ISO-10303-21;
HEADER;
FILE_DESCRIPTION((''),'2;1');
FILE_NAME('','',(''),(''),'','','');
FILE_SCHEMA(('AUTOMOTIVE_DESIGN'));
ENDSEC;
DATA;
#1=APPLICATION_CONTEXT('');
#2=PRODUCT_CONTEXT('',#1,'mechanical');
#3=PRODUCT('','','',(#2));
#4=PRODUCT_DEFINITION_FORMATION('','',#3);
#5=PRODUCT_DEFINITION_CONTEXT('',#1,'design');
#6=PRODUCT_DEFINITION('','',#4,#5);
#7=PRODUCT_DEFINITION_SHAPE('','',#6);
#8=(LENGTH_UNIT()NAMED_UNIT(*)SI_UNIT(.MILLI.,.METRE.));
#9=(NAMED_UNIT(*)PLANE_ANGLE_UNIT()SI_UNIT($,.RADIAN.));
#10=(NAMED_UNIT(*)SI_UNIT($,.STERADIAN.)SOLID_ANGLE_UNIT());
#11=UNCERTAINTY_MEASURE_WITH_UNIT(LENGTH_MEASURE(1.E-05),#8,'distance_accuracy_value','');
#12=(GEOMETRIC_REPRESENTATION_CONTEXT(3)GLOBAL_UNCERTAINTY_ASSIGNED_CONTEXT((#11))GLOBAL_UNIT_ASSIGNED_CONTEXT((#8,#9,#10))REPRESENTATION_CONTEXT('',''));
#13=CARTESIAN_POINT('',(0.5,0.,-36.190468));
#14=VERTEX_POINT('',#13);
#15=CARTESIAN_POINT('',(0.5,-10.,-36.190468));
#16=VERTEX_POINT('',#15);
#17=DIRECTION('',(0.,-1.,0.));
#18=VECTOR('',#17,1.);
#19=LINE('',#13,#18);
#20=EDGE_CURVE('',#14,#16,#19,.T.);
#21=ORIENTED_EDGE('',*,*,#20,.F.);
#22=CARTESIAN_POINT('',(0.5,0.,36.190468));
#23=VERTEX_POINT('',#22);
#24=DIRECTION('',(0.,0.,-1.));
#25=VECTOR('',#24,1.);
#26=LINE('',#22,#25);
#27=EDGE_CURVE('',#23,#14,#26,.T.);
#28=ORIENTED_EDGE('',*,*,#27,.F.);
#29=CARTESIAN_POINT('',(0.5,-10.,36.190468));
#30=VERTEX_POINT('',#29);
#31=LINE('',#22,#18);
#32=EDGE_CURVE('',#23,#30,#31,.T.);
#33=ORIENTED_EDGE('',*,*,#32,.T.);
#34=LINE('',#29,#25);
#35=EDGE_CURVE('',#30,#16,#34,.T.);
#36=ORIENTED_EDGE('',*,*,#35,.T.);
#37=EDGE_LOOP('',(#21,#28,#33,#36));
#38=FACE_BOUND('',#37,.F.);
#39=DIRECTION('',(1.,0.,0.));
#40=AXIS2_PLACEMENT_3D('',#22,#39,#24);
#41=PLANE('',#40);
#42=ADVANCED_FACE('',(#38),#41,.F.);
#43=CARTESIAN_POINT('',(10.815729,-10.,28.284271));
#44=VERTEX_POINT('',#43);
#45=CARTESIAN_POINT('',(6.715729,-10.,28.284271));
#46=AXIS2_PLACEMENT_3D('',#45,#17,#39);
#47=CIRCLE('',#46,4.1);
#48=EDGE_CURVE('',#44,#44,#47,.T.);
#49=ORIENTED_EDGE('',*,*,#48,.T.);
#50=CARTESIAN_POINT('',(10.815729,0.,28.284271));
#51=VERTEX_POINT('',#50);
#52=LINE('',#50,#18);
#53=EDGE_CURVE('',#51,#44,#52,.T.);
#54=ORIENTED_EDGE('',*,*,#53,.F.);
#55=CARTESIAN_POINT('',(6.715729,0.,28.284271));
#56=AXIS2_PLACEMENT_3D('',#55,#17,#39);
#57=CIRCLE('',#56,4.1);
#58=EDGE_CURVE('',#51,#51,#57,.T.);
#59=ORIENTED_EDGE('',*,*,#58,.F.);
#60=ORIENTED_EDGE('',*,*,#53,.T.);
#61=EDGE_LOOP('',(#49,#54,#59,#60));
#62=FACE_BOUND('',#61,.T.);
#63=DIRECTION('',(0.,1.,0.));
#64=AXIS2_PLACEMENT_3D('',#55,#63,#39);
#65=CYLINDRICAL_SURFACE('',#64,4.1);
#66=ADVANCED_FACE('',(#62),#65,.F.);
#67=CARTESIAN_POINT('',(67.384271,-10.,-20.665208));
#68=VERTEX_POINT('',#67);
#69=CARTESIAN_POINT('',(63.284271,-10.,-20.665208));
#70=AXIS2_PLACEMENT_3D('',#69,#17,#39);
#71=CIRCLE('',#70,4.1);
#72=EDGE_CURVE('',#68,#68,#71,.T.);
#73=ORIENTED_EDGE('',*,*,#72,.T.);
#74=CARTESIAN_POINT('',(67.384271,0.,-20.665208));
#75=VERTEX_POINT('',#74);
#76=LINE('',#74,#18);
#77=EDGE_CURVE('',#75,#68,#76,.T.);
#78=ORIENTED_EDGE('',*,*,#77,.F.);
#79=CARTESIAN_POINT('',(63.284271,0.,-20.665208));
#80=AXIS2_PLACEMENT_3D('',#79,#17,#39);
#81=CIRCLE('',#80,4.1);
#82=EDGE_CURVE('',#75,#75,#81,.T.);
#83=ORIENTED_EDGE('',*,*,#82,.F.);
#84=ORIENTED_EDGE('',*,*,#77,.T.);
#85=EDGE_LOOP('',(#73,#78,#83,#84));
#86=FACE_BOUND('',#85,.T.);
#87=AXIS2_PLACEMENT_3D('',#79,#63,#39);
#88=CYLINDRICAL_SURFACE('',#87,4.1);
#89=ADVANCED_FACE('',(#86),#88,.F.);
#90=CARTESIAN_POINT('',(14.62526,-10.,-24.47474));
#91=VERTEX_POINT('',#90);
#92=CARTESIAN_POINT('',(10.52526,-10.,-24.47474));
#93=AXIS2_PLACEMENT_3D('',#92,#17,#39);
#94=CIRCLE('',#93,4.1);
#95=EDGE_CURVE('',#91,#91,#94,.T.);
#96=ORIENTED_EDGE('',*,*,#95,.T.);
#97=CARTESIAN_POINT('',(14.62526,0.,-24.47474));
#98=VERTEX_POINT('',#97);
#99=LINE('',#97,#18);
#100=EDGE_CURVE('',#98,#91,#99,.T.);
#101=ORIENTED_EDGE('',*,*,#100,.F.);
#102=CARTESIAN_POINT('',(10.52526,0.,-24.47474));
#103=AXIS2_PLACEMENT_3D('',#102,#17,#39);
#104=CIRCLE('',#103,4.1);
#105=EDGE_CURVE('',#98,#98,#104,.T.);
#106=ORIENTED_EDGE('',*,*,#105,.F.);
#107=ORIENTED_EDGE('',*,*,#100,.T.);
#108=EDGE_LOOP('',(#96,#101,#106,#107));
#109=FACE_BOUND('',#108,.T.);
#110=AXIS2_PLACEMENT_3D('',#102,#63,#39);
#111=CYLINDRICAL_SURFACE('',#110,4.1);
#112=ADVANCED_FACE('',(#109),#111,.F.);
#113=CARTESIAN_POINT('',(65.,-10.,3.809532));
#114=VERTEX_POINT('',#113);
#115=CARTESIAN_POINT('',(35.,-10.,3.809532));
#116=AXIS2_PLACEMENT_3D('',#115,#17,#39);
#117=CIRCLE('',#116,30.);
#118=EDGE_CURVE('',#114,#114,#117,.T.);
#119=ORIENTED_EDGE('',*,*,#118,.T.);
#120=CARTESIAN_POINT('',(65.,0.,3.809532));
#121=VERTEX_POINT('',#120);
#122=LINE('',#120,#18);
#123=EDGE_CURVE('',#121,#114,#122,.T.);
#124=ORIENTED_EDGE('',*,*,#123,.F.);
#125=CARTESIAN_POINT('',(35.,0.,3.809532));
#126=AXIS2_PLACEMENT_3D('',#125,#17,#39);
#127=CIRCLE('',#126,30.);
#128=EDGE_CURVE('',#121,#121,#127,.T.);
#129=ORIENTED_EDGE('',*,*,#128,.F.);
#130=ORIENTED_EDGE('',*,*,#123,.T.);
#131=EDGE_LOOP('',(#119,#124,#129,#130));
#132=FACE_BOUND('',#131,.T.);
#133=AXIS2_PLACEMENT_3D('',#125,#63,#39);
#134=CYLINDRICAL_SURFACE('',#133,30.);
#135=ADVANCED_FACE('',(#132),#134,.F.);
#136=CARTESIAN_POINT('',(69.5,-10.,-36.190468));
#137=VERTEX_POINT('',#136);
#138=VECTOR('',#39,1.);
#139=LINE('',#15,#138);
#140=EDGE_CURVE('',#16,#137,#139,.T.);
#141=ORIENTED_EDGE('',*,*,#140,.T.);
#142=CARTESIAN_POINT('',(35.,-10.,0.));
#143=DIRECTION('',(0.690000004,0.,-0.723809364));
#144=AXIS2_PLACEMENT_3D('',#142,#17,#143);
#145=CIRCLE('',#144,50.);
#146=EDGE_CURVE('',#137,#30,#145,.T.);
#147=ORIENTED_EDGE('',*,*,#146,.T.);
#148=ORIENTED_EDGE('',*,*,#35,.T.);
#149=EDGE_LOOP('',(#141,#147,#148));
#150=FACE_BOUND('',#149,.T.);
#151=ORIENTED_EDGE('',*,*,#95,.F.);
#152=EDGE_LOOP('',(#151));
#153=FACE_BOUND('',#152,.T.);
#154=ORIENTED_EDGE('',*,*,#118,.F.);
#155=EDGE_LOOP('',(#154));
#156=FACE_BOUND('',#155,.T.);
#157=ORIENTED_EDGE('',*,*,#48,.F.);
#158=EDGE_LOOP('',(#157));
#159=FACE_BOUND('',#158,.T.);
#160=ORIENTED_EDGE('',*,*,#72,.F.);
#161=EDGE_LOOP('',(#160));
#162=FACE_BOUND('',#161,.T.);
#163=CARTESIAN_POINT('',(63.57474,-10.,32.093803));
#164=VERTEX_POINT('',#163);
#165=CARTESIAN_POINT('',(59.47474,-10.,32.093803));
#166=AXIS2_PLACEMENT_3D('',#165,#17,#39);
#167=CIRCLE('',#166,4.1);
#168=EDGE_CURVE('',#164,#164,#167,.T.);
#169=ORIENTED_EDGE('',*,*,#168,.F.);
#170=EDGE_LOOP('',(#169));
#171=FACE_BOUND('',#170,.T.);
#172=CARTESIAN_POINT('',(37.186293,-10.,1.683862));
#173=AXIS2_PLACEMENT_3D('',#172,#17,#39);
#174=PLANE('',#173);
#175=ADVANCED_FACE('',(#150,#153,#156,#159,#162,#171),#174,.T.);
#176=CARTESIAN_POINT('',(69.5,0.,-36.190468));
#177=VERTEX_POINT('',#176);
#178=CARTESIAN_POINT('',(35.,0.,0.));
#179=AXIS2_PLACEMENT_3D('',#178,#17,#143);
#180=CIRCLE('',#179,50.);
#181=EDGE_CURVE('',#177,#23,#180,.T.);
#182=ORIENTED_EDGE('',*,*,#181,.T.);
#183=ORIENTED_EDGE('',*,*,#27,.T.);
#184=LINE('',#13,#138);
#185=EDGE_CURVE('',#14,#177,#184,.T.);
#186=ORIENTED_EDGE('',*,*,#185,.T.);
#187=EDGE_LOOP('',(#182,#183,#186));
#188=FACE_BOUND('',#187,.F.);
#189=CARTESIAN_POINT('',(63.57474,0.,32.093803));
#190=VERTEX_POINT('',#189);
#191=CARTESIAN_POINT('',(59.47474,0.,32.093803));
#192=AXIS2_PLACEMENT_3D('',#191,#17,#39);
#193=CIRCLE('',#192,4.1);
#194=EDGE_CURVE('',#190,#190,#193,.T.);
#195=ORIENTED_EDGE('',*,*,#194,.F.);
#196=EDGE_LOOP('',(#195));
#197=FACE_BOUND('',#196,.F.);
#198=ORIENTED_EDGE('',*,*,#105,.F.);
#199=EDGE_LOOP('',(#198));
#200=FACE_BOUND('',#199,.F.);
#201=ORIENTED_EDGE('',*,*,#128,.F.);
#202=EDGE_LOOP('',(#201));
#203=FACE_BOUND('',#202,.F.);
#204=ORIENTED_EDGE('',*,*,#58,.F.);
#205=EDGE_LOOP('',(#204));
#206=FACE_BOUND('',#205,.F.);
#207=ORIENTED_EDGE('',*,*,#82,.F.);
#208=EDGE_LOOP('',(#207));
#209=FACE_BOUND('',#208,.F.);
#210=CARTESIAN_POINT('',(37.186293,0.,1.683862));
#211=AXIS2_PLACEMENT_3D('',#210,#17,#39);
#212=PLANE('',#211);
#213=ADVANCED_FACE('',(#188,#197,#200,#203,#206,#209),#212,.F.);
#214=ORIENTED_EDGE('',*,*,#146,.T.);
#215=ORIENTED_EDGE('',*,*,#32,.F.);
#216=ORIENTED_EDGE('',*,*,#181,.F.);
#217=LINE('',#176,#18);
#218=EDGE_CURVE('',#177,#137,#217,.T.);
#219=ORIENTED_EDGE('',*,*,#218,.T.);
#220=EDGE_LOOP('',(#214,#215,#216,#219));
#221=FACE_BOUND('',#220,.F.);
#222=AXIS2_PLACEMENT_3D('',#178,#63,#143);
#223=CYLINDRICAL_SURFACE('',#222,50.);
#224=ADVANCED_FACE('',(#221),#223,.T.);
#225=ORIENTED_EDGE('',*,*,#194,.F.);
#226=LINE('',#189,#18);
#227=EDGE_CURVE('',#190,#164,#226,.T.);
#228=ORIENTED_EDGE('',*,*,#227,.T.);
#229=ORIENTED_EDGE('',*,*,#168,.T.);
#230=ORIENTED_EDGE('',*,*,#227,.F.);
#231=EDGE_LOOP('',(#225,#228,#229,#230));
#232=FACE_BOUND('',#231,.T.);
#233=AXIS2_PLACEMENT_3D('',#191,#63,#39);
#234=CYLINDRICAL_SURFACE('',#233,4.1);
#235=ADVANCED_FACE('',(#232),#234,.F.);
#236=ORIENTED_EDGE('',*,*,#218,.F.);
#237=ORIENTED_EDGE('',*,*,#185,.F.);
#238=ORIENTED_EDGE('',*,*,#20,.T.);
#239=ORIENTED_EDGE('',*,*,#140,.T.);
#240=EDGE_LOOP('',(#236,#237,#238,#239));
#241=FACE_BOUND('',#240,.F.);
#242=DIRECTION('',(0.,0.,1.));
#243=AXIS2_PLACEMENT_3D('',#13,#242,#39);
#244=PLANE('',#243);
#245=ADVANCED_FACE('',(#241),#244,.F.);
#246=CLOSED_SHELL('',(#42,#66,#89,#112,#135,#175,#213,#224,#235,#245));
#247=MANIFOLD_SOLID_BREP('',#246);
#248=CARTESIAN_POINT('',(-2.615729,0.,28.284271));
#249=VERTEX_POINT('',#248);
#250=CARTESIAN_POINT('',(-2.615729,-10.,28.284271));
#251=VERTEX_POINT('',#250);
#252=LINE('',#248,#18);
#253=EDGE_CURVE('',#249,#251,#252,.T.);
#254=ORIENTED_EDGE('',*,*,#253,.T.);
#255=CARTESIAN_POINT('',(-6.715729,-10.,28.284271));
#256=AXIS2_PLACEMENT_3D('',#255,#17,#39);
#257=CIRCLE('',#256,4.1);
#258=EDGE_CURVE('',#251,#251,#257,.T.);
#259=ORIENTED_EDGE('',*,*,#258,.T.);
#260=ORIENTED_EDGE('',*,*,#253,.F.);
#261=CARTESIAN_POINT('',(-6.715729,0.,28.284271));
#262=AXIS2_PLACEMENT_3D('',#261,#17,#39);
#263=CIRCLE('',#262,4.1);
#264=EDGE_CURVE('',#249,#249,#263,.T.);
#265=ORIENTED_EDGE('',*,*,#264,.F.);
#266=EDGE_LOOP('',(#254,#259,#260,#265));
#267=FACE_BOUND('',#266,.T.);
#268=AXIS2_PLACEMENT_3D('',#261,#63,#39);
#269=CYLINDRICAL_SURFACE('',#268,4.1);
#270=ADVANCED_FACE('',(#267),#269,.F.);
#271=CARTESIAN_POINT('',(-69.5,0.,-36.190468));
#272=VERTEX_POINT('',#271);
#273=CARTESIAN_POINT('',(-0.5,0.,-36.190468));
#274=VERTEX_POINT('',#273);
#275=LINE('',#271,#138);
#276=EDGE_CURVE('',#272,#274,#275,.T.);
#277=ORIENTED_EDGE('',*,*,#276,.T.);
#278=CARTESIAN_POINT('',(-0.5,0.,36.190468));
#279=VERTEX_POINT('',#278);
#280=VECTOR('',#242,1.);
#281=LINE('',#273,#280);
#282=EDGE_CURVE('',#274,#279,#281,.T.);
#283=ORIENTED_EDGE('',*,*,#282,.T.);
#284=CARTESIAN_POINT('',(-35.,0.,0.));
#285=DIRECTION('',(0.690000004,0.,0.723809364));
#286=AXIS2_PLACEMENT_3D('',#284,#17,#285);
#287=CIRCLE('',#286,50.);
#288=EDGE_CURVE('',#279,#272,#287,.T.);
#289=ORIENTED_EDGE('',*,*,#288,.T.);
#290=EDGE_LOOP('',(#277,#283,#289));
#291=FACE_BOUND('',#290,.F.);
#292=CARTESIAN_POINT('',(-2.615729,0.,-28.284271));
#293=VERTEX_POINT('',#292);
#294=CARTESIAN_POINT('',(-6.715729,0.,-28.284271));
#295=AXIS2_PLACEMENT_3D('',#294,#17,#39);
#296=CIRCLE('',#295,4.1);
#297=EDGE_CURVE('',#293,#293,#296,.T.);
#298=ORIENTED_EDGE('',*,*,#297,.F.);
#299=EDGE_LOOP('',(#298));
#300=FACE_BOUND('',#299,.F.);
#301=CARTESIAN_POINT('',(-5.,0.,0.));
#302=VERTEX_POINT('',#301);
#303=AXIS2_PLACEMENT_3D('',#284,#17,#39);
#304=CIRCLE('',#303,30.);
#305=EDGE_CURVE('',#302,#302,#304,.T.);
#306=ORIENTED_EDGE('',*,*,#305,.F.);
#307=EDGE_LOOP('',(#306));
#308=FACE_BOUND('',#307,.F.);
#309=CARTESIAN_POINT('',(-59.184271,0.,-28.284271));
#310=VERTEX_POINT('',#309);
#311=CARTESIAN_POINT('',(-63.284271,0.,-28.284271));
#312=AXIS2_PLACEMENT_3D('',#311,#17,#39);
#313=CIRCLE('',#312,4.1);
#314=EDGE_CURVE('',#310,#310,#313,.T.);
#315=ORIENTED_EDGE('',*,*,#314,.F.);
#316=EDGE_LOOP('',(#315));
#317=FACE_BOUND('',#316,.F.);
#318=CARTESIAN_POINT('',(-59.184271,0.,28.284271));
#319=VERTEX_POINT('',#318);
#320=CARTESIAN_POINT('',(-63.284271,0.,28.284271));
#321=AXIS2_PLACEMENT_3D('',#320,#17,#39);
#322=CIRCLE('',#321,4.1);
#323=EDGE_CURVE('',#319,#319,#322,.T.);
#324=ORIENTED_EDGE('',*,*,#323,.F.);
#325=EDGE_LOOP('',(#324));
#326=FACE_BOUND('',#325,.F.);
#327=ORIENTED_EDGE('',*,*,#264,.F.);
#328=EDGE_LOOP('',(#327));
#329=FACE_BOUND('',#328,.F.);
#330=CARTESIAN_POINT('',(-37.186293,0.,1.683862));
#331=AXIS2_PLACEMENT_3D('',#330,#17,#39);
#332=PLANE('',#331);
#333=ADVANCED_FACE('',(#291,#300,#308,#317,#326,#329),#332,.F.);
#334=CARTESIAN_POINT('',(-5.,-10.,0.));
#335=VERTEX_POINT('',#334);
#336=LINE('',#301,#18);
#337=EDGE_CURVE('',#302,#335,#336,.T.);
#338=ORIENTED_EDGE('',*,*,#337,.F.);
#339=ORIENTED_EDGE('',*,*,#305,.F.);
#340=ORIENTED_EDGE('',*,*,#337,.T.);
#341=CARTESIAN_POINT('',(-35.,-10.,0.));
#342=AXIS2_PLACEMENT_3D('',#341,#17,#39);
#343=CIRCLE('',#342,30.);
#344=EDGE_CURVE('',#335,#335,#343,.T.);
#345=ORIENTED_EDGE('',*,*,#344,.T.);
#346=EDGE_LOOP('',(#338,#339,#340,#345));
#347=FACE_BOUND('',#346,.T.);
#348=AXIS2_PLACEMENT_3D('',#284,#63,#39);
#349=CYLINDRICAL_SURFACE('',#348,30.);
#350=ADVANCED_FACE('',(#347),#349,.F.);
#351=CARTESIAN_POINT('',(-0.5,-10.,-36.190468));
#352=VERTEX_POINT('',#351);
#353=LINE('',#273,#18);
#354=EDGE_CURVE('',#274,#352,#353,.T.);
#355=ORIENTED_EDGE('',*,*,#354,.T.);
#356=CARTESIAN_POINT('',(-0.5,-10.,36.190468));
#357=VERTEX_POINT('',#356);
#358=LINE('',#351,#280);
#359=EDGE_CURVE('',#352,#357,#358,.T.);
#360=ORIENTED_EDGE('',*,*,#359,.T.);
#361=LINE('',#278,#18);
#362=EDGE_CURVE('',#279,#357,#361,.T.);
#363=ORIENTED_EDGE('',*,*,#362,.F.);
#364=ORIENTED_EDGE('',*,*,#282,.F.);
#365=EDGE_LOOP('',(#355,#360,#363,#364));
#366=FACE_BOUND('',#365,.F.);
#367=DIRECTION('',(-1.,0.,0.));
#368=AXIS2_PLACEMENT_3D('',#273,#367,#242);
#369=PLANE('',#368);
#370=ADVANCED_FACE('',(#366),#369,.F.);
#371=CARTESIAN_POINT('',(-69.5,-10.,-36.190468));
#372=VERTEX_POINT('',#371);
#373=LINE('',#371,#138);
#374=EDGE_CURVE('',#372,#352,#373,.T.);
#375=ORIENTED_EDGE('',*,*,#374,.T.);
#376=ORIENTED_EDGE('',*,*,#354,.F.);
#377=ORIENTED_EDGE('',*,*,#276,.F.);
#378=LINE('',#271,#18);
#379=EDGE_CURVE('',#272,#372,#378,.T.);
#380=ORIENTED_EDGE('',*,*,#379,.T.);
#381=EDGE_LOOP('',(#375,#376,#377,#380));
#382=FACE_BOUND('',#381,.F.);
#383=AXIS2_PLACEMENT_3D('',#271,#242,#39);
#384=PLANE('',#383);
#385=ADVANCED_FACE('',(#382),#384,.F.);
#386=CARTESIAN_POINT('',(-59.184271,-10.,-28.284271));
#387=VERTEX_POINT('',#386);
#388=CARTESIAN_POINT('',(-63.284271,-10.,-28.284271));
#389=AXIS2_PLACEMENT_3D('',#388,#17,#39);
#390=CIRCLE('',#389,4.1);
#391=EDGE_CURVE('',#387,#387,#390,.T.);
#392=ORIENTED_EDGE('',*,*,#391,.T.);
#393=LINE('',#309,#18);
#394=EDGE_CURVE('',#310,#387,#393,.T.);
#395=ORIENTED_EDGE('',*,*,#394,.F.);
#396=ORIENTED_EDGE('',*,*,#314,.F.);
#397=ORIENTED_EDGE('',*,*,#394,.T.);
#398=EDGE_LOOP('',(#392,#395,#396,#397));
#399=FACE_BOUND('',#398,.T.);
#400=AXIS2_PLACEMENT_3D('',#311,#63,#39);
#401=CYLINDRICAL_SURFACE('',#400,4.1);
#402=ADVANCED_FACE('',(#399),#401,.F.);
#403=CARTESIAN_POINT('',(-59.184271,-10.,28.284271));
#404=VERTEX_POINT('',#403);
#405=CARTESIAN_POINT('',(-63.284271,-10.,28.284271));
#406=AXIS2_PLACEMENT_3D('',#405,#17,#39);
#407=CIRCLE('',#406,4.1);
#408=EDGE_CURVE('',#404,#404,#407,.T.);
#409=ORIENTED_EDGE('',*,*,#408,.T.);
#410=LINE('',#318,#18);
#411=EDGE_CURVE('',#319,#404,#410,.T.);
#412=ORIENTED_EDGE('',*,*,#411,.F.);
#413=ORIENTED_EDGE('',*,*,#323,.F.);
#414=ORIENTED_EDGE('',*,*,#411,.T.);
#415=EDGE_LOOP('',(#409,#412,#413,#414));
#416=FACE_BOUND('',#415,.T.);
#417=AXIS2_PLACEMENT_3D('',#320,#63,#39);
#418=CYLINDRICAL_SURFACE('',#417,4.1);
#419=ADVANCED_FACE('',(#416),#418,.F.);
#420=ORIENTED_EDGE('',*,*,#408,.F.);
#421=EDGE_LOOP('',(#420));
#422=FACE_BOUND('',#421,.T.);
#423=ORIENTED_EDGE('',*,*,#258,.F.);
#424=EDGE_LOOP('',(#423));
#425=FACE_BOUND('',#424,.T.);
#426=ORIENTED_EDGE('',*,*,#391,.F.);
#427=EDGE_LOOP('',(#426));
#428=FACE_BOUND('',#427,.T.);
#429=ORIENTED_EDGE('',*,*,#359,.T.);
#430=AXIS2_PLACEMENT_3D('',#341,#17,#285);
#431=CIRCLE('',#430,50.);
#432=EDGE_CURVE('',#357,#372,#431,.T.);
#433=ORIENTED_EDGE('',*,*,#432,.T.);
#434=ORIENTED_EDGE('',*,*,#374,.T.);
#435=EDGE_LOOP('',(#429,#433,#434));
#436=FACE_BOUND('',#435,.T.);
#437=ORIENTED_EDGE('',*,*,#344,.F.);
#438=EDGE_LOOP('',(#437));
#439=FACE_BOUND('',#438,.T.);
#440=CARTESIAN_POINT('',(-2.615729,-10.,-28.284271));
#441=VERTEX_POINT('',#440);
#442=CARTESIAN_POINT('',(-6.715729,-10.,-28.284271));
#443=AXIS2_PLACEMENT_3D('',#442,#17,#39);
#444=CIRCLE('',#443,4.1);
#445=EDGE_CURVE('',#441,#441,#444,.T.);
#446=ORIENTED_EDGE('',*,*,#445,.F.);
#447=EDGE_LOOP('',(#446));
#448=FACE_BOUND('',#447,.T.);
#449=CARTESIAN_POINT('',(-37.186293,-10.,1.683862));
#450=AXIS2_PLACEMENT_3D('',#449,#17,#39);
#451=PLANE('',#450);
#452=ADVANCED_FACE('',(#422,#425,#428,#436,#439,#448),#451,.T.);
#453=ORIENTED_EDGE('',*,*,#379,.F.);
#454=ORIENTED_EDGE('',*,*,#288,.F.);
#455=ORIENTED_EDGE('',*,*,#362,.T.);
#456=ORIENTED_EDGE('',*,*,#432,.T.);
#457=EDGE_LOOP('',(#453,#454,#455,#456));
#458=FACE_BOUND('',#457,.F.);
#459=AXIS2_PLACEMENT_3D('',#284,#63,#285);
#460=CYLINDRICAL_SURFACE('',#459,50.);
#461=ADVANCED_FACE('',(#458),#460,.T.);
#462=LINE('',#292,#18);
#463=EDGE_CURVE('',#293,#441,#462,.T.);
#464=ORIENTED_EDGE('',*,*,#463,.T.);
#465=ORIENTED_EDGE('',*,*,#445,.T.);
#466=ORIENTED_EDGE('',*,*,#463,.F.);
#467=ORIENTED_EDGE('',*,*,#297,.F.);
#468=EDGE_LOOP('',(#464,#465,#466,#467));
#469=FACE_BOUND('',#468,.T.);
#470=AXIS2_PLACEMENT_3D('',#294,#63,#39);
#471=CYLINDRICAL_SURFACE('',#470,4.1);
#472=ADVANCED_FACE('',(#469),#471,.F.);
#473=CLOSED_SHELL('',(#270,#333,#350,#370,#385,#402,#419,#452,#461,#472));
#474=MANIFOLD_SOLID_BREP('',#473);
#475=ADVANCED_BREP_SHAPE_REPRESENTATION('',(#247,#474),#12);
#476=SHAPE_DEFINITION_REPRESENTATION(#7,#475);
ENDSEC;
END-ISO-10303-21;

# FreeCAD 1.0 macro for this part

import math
import FreeCAD as App
import Part
import Sketcher

V = App.Vector

doc = App.newDocument("Part")
body = doc.addObject("PartDesign::Body", "Body")
body.AllowCompound = True

sketch1 = body.newObject("Sketcher::SketchObject", "Sketch")
sketch1.AttachmentSupport = (doc.getObject("XZ_Plane"), [""])
sketch1.MapMode = "FlatFace"
sketch1.addGeometry([
    Part.LineSegment(V(-0.5, -36.190468, 0), V(-0.5, 36.190468, 0)),
    Part.ArcOfCircle(Part.Circle(V(-35, 0, 0), V(0, 0, 1), 50), math.radians(46.369891), math.radians(226.369891)),
    Part.LineSegment(V(-69.5, -36.190468, 0), V(-0.5, -36.190468, 0)),
    Part.Circle(V(-63.284271, -28.284271, 0), V(0, 0, 1), 4.1),
    Part.Circle(V(-6.715729, -28.284271, 0), V(0, 0, 1), 4.1),
    Part.Circle(V(-63.284271, 28.284271, 0), V(0, 0, 1), 4.1),
    Part.Circle(V(-35, 0, 0), V(0, 0, 1), 30),
    Part.Circle(V(-6.715729, 28.284271, 0), V(0, 0, 1), 4.1),
    Part.LineSegment(V(0.5, -36.190468, 0), V(69.5, -36.190468, 0)),
    Part.ArcOfCircle(Part.Circle(V(35, 0, 0), V(0, 0, 1), 50), math.radians(-46.369891), math.radians(133.630109)),
    Part.LineSegment(V(0.5, 36.190468, 0), V(0.5, -36.190468, 0)),
    Part.Circle(V(10.52526, -24.47474, 0), V(0, 0, 1), 4.1),
    Part.Circle(V(63.284271, -20.665208, 0), V(0, 0, 1), 4.1),
    Part.Circle(V(6.715729, 28.284271, 0), V(0, 0, 1), 4.1),
    Part.Circle(V(35, 3.809532, 0), V(0, 0, 1), 30),
    Part.Circle(V(59.47474, 32.093803, 0), V(0, 0, 1), 4.1),
], False)
sketch1.addConstraint([
    Sketcher.Constraint("Coincident", 0, 2, 1, 1),
    Sketcher.Constraint("Coincident", 1, 2, 2, 1),
    Sketcher.Constraint("Coincident", 2, 2, 0, 1),
    Sketcher.Constraint("Coincident", 8, 2, 9, 1),
    Sketcher.Constraint("Coincident", 9, 2, 10, 1),
    Sketcher.Constraint("Coincident", 10, 2, 8, 1),
    Sketcher.Constraint("Vertical", 0),
    Sketcher.Constraint("Horizontal", 2),
    Sketcher.Constraint("Horizontal", 8),
    Sketcher.Constraint("Vertical", 10),
    Sketcher.Constraint("Coincident", 6, 3, 1, 3),
    Sketcher.Constraint("Equal", 3, 4),
    Sketcher.Constraint("Equal", 4, 5),
    Sketcher.Constraint("Equal", 5, 7),
    Sketcher.Constraint("Equal", 1, 9),
    Sketcher.Constraint("Equal", 7, 11),
    Sketcher.Constraint("Equal", 11, 12),
    Sketcher.Constraint("Equal", 12, 13),
    Sketcher.Constraint("Equal", 6, 14),
    Sketcher.Constraint("Equal", 13, 15),
    Sketcher.Constraint("Symmetric", 1, 3, 9, 3, -1, 1),
    Sketcher.Constraint("Symmetric", 4, 3, 13, 3, -1, 1),
    Sketcher.Constraint("Symmetric", 2, 2, 9, 2, -1, 1),
    Sketcher.Constraint("Symmetric", 7, 3, 13, 3, -2),
    Sketcher.Constraint("Symmetric", 1, 2, 8, 2, -2),
    Sketcher.Constraint("Symmetric", 3, 3, 5, 3, -1),
    Sketcher.Constraint("Horizontal", 3, 3, 4, 3),
    Sketcher.Constraint("Vertical", 9, 3, 14, 3),
    Sketcher.Constraint("Diameter", 6, 60.0),
    Sketcher.Constraint("Radius", 1, 50.0),
    Sketcher.Constraint("Diameter", 3, 8.2),
    Sketcher.Constraint("DistanceX", 2, 1, 2, 2, 69.0),
    Sketcher.Constraint("DistanceX", 1, 3, -1, 1, 35.0),
    Sketcher.Constraint("DistanceX", 4, 3, 12, 3, 70.0),
    Sketcher.Constraint("DistanceY", 8, 2, 14, 3, 40.0),
    Sketcher.Constraint("DistanceX", 3, 3, -1, 1, 63.284271),
    Sketcher.Constraint("DistanceY", 3, 3, -1, 1, 28.284271),
    Sketcher.Constraint("DistanceX", 4, 3, -1, 1, 6.715729),
    Sketcher.Constraint("DistanceX", -1, 1, 11, 3, 10.52526),
    Sketcher.Constraint("DistanceY", 11, 3, -1, 1, 24.47474),
    Sketcher.Constraint("DistanceY", 12, 3, -1, 1, 20.665208),
    Sketcher.Constraint("DistanceX", -1, 1, 15, 3, 59.47474),
    Sketcher.Constraint("DistanceY", 14, 3, 15, 3, 28.284271),
])
pad1 = body.newObject("PartDesign::Pad", "Pad")
pad1.Profile = sketch1
pad1.Length = 10

doc.recompute()
